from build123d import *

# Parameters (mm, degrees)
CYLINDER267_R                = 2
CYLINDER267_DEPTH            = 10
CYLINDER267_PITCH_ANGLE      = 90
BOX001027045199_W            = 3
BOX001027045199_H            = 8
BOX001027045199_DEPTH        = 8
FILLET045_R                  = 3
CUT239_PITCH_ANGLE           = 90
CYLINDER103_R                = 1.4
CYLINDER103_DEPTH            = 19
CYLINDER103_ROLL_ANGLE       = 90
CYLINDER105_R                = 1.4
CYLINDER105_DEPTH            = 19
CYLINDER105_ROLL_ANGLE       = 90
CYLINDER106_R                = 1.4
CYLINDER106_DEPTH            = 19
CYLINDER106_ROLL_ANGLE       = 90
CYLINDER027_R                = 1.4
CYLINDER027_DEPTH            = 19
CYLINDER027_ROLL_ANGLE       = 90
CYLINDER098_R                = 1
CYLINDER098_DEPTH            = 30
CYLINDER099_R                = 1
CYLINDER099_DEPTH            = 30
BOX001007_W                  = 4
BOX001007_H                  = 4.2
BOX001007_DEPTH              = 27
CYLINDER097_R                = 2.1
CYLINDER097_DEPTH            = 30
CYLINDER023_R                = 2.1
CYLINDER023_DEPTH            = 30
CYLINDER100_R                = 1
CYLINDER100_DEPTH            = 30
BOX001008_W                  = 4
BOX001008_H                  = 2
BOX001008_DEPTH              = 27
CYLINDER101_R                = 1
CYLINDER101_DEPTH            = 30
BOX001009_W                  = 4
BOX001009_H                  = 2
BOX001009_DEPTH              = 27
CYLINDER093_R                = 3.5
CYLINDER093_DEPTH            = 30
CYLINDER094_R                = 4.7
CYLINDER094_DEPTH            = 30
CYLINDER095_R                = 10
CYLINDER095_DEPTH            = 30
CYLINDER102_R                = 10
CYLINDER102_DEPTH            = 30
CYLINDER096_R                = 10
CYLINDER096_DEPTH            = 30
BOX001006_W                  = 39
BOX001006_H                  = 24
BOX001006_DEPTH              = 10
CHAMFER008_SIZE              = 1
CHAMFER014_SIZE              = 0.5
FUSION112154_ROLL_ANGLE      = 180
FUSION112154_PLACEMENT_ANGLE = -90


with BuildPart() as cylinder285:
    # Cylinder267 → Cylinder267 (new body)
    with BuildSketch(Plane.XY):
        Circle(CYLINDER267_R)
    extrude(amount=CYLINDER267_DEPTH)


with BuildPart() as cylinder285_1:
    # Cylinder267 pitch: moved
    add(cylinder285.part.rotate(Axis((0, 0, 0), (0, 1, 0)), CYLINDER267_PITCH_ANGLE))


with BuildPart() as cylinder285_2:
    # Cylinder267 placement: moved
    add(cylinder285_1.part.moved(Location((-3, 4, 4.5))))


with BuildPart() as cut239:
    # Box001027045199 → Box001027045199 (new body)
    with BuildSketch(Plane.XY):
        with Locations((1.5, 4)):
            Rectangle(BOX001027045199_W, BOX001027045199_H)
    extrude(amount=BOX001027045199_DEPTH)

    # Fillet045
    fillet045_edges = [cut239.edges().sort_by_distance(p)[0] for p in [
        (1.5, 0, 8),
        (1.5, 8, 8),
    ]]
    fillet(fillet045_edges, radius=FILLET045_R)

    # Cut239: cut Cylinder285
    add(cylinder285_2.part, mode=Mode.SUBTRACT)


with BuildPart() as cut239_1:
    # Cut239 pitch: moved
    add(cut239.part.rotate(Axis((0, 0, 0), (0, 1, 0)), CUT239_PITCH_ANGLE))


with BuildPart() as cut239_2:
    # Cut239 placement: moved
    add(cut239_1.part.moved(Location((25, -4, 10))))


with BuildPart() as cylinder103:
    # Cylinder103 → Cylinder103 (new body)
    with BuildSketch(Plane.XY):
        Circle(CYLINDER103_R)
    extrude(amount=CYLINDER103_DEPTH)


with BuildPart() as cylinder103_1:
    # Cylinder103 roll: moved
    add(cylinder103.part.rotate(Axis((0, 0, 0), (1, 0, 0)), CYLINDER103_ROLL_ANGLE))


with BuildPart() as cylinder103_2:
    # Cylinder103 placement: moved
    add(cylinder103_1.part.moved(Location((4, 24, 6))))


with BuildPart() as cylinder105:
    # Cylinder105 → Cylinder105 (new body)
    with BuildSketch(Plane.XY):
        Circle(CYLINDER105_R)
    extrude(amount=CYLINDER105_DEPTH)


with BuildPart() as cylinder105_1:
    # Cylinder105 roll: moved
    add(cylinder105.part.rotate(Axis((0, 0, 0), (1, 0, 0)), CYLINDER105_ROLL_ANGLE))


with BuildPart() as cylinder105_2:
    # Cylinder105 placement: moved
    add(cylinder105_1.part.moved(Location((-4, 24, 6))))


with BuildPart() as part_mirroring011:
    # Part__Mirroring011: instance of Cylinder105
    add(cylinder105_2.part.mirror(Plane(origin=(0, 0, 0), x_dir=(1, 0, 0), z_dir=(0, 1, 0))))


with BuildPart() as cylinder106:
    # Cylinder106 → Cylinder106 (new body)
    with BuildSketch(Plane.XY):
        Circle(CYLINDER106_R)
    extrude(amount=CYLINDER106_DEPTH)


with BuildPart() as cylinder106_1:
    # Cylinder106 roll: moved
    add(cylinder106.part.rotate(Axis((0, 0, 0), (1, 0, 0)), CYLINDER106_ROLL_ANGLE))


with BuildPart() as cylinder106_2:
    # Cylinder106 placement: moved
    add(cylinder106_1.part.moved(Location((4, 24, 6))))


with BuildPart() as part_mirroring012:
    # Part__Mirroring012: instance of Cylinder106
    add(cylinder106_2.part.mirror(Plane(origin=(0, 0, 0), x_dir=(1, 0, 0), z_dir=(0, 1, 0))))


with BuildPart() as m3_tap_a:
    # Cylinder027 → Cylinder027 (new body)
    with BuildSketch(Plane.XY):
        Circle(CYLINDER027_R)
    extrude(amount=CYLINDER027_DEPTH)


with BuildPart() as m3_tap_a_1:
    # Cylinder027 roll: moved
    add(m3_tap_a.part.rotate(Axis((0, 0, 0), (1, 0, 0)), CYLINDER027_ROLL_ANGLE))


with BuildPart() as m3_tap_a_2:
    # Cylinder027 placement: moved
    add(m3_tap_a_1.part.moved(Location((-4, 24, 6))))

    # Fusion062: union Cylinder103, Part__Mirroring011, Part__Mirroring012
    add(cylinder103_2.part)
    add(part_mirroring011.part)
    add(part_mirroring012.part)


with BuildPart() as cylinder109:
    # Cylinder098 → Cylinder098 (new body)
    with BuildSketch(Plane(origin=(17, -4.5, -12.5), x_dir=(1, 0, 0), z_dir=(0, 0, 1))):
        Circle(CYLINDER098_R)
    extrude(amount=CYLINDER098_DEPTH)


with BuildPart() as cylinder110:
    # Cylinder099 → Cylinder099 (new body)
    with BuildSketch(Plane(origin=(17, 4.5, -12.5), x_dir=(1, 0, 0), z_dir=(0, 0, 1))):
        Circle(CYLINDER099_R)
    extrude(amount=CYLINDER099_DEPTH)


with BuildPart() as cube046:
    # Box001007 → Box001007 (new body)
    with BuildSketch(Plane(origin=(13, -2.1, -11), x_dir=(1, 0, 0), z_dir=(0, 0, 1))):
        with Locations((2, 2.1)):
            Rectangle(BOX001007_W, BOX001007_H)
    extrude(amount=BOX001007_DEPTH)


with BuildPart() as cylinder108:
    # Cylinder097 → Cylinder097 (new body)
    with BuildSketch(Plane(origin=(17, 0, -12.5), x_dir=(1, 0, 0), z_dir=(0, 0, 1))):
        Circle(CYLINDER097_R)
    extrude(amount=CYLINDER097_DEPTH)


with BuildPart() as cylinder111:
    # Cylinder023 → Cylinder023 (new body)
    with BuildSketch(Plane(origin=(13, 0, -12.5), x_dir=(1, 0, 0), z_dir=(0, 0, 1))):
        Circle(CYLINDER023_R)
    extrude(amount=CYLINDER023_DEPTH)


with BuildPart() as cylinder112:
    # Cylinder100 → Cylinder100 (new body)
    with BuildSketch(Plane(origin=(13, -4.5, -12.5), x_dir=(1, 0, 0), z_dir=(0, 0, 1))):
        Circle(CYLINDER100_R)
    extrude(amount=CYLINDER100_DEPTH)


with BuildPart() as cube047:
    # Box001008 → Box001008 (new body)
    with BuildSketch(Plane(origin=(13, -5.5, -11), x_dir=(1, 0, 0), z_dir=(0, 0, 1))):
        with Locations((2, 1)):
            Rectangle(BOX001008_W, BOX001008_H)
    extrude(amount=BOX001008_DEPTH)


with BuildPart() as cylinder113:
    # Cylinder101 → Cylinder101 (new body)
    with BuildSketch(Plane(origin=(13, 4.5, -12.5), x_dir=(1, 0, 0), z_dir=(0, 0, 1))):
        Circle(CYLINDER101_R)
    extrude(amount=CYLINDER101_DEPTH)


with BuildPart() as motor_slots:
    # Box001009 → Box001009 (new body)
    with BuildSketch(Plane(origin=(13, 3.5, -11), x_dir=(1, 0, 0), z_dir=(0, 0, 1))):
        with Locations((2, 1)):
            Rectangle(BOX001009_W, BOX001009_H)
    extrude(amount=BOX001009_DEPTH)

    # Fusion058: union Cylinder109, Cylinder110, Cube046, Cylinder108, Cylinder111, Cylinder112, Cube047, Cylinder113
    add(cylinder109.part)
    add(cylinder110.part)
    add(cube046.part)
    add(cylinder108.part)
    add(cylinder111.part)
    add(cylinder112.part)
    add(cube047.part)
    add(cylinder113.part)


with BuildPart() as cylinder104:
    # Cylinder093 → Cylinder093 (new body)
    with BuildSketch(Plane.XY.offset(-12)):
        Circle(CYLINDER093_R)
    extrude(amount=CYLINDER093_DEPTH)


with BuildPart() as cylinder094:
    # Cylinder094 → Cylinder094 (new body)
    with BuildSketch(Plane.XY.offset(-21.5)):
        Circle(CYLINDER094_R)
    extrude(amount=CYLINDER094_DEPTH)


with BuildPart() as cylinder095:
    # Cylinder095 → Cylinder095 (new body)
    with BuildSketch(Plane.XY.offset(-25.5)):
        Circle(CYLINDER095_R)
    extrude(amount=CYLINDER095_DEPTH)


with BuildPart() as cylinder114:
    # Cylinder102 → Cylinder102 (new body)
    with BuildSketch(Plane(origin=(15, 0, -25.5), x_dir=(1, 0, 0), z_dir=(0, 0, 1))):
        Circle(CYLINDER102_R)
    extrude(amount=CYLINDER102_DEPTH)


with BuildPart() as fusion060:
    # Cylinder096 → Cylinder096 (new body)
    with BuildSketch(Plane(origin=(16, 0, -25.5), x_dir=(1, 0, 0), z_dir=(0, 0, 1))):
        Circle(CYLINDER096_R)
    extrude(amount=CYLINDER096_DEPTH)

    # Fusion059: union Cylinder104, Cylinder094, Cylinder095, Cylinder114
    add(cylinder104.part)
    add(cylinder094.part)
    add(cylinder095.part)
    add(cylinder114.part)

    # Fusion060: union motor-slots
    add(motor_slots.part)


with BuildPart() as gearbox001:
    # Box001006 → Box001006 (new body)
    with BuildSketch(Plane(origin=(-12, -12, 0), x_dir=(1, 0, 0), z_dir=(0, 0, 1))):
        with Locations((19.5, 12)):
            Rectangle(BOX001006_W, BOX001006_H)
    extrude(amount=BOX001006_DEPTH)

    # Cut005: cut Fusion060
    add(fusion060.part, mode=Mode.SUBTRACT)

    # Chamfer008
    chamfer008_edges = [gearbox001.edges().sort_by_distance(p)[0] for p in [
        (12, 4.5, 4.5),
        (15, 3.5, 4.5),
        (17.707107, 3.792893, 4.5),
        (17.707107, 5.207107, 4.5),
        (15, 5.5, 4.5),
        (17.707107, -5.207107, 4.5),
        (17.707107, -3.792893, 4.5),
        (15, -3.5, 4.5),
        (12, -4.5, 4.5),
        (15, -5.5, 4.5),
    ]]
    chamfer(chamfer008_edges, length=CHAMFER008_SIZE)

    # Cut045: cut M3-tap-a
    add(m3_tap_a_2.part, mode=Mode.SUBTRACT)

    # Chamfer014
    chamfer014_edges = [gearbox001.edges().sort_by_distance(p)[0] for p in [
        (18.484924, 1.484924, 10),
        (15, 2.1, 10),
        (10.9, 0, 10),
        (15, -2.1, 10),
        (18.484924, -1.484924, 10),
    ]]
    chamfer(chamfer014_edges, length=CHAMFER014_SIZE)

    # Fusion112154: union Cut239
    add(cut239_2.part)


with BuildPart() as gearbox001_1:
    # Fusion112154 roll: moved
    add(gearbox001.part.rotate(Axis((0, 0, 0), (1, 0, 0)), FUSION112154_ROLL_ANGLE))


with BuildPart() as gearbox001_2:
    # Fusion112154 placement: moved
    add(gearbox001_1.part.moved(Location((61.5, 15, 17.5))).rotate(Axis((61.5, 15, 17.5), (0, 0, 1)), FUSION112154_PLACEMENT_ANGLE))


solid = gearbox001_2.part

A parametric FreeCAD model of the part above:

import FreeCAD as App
import Part
import Sketcher
Q = App.Units.Quantity


def edges_at(feature, points):
    """Names of the edges that pass closest to the given points."""
    edges = feature.Shape.Edges
    near = lambda p: min(range(len(edges)), key=lambda i: edges[i].distToShape(Part.Vertex(*p))[0])
    return sorted({f"Edge{near(p) + 1}" for p in points})


def add_polygon(sketch, points):
    """Adds a closed chain of lines whose ends are joined by coincident constraints."""
    first, n = sketch.GeometryCount, len(points)
    for a, b in zip(points, points[1:] + points[:1]):
        sketch.addGeometry(Part.LineSegment(App.Vector(*a, 0), App.Vector(*b, 0)), False)
    for i in range(n):
        sketch.addConstraint(Sketcher.Constraint("Coincident", first + i, 2, first + (i + 1) % n, 1))

doc = App.newDocument("Part")
body = doc.addObject("PartDesign::Body", "Body")

sketch1 = body.newObject("Sketcher::SketchObject", "Sketch")
sketch1.AttachmentSupport = (doc.getObject("XY_Plane"), [""])
sketch1.MapMode = "FlatFace"
sketch1.addGeometry(Part.Circle(App.Vector(0, 0, 0), App.Vector(0, 0, 1), 2), False)
sketch1.addConstraint(Sketcher.Constraint("Coincident", 0, 3, -1, 1))
sketch1.addConstraint(Sketcher.Constraint("Diameter", 0, Q("4 mm")))
pad1 = body.newObject("PartDesign::Pad", "Pad")
pad1.Profile = sketch1
pad1.Length = 10
body2 = doc.addObject("PartDesign::Body", "Body001")
doc.recompute()

body.Placement = App.Placement(App.Vector(0, 0, 0), App.Rotation(App.Vector(0, 1, 0), 90))
boolean = body2.newObject("PartDesign::Boolean", "Boolean")
boolean.Type = "Fuse"
boolean.addObjects([body])
body3 = doc.addObject("PartDesign::Body", "Body002")
doc.recompute()

body2.Placement = App.Placement(App.Vector(-3, 4, 4.5), App.Rotation(App.Vector(0, 0, 1), 0))
boolean2 = body3.newObject("PartDesign::Boolean", "Boolean001")
boolean2.Type = "Fuse"
boolean2.addObjects([body2])
body4 = doc.addObject("PartDesign::Body", "Body003")

sketch2 = body4.newObject("Sketcher::SketchObject", "Sketch001")
sketch2.AttachmentSupport = (doc.getObject("XY_Plane003"), [""])
sketch2.MapMode = "FlatFace"
add_polygon(sketch2, [(0, 8), (0, 0), (3, 0), (3, 8)])
sketch2.addConstraint(Sketcher.Constraint("Vertical", 0))
sketch2.addConstraint(Sketcher.Constraint("Horizontal", 1))
sketch2.addConstraint(Sketcher.Constraint("Vertical", 2))
sketch2.addConstraint(Sketcher.Constraint("Horizontal", 3))
sketch2.addConstraint(Sketcher.Constraint("Coincident", 0, 2, -1, 1))
sketch2.addConstraint(Sketcher.Constraint("DistanceX", 1, 1, 1, 2, Q("3 mm")))
sketch2.addConstraint(Sketcher.Constraint("DistanceY", 0, 2, 0, 1, Q("8 mm")))
pad2 = body4.newObject("PartDesign::Pad", "Pad001")
pad2.Profile = sketch2
pad2.Length = 8
doc.recompute()

fillet = body4.newObject("PartDesign::Fillet", "Fillet")
fillet.Base = (pad2, edges_at(pad2, [(1.5, 0, 8), (1.5, 8, 8)]))
fillet.Radius = 3
doc.recompute()

boolean3 = body4.newObject("PartDesign::Boolean", "Boolean002")
boolean3.Type = "Cut"
boolean3.addObjects([body3])
body5 = doc.addObject("PartDesign::Body", "Body004")
doc.recompute()

body4.Placement = App.Placement(App.Vector(0, 0, 0), App.Rotation(App.Vector(0, 1, 0), 90))
boolean4 = body5.newObject("PartDesign::Boolean", "Boolean003")
boolean4.Type = "Fuse"
boolean4.addObjects([body4])
body6 = doc.addObject("PartDesign::Body", "Body005")
doc.recompute()

body5.Placement = App.Placement(App.Vector(25, -4, 10), App.Rotation(App.Vector(0, 0, 1), 0))
boolean5 = body6.newObject("PartDesign::Boolean", "Boolean004")
boolean5.Type = "Fuse"
boolean5.addObjects([body5])
body7 = doc.addObject("PartDesign::Body", "Body006")

sketch3 = body7.newObject("Sketcher::SketchObject", "Sketch002")
sketch3.AttachmentSupport = (doc.getObject("XY_Plane006"), [""])
sketch3.MapMode = "FlatFace"
sketch3.addGeometry(Part.Circle(App.Vector(0, 0, 0), App.Vector(0, 0, 1), 1.4), False)
sketch3.addConstraint(Sketcher.Constraint("Coincident", 0, 3, -1, 1))
sketch3.addConstraint(Sketcher.Constraint("Diameter", 0, Q("2.8 mm")))
pad3 = body7.newObject("PartDesign::Pad", "Pad002")
pad3.Profile = sketch3
pad3.Length = 19
body8 = doc.addObject("PartDesign::Body", "Body007")
doc.recompute()

body7.Placement = App.Placement(App.Vector(0, 0, 0), App.Rotation(App.Vector(1, 0, 0), 90))
boolean6 = body8.newObject("PartDesign::Boolean", "Boolean005")
boolean6.Type = "Fuse"
boolean6.addObjects([body7])
body9 = doc.addObject("PartDesign::Body", "Body008")
doc.recompute()

body8.Placement = App.Placement(App.Vector(4, 24, 6), App.Rotation(App.Vector(0, 0, 1), 0))
boolean7 = body9.newObject("PartDesign::Boolean", "Boolean006")
boolean7.Type = "Fuse"
boolean7.addObjects([body8])
body10 = doc.addObject("PartDesign::Body", "Body009")

sketch4 = body10.newObject("Sketcher::SketchObject", "Sketch003")
sketch4.AttachmentSupport = (doc.getObject("XY_Plane009"), [""])
sketch4.MapMode = "FlatFace"
sketch4.addGeometry(Part.Circle(App.Vector(0, 0, 0), App.Vector(0, 0, 1), 1.4), False)
sketch4.addConstraint(Sketcher.Constraint("Coincident", 0, 3, -1, 1))
sketch4.addConstraint(Sketcher.Constraint("Diameter", 0, Q("2.8 mm")))
pad4 = body10.newObject("PartDesign::Pad", "Pad003")
pad4.Profile = sketch4
pad4.Length = 19
body11 = doc.addObject("PartDesign::Body", "Body010")
doc.recompute()

body10.Placement = App.Placement(App.Vector(0, 0, 0), App.Rotation(App.Vector(1, 0, 0), 90))
boolean8 = body11.newObject("PartDesign::Boolean", "Boolean007")
boolean8.Type = "Fuse"
boolean8.addObjects([body10])
body12 = doc.addObject("PartDesign::Body", "Body011")
doc.recompute()

body11.Placement = App.Placement(App.Vector(-4, 24, 6), App.Rotation(App.Vector(0, 0, 1), 0))
boolean9 = body12.newObject("PartDesign::Boolean", "Boolean008")
boolean9.Type = "Fuse"
boolean9.addObjects([body11])
body13 = doc.addObject("PartDesign::Body", "Body012")
doc.recompute()

mirroring = doc.addObject("Part::Mirroring", "Mirroring")
mirroring.Source = body12
mirroring.Base = App.Vector(0, 0, 0)
mirroring.Normal = App.Vector(0, 1, 0)
body13.BaseFeature = mirroring
doc.recompute()
body14 = doc.addObject("PartDesign::Body", "Body013")

sketch5 = body14.newObject("Sketcher::SketchObject", "Sketch004")
sketch5.AttachmentSupport = (doc.getObject("XY_Plane013"), [""])
sketch5.MapMode = "FlatFace"
sketch5.addGeometry(Part.Circle(App.Vector(0, 0, 0), App.Vector(0, 0, 1), 1.4), False)
sketch5.addConstraint(Sketcher.Constraint("Coincident", 0, 3, -1, 1))
sketch5.addConstraint(Sketcher.Constraint("Diameter", 0, Q("2.8 mm")))
pad5 = body14.newObject("PartDesign::Pad", "Pad004")
pad5.Profile = sketch5
pad5.Length = 19
body15 = doc.addObject("PartDesign::Body", "Body014")
doc.recompute()

body14.Placement = App.Placement(App.Vector(0, 0, 0), App.Rotation(App.Vector(1, 0, 0), 90))
boolean10 = body15.newObject("PartDesign::Boolean", "Boolean009")
boolean10.Type = "Fuse"
boolean10.addObjects([body14])
body16 = doc.addObject("PartDesign::Body", "Body015")
doc.recompute()

body15.Placement = App.Placement(App.Vector(4, 24, 6), App.Rotation(App.Vector(0, 0, 1), 0))
boolean11 = body16.newObject("PartDesign::Boolean", "Boolean010")
boolean11.Type = "Fuse"
boolean11.addObjects([body15])
body17 = doc.addObject("PartDesign::Body", "Body016")
doc.recompute()

mirroring2 = doc.addObject("Part::Mirroring", "Mirroring001")
mirroring2.Source = body16
mirroring2.Base = App.Vector(0, 0, 0)
mirroring2.Normal = App.Vector(0, 1, 0)
body17.BaseFeature = mirroring2
doc.recompute()
body18 = doc.addObject("PartDesign::Body", "Body017")

sketch6 = body18.newObject("Sketcher::SketchObject", "Sketch005")
sketch6.AttachmentSupport = (doc.getObject("XY_Plane017"), [""])
sketch6.MapMode = "FlatFace"
sketch6.addGeometry(Part.Circle(App.Vector(0, 0, 0), App.Vector(0, 0, 1), 1.4), False)
sketch6.addConstraint(Sketcher.Constraint("Coincident", 0, 3, -1, 1))
sketch6.addConstraint(Sketcher.Constraint("Diameter", 0, Q("2.8 mm")))
pad6 = body18.newObject("PartDesign::Pad", "Pad005")
pad6.Profile = sketch6
pad6.Length = 19
body19 = doc.addObject("PartDesign::Body", "Body018")
doc.recompute()

body18.Placement = App.Placement(App.Vector(0, 0, 0), App.Rotation(App.Vector(1, 0, 0), 90))
boolean12 = body19.newObject("PartDesign::Boolean", "Boolean011")
boolean12.Type = "Fuse"
boolean12.addObjects([body18])
body20 = doc.addObject("PartDesign::Body", "Body019")
body20.AllowCompound = True
doc.recompute()

body19.Placement = App.Placement(App.Vector(-4, 24, 6), App.Rotation(App.Vector(0, 0, 1), 0))
boolean13 = body20.newObject("PartDesign::Boolean", "Boolean012")
boolean13.Type = "Fuse"
boolean13.addObjects([body19])
doc.recompute()

boolean14 = body20.newObject("PartDesign::Boolean", "Boolean013")
boolean14.Type = "Fuse"
boolean14.addObjects([body9])
doc.recompute()

boolean15 = body20.newObject("PartDesign::Boolean", "Boolean014")
boolean15.Type = "Fuse"
boolean15.addObjects([body13])
doc.recompute()

boolean16 = body20.newObject("PartDesign::Boolean", "Boolean015")
boolean16.Type = "Fuse"
boolean16.addObjects([body17])
body21 = doc.addObject("PartDesign::Body", "Body020")

sketch7 = body21.newObject("Sketcher::SketchObject", "Sketch006")
sketch7.AttachmentSupport = (doc.getObject("XY_Plane020"), [""])
sketch7.MapMode = "FlatFace"
sketch7.AttachmentOffset = App.Placement(App.Vector(0, 0, -12.5), App.Rotation())
sketch7.addGeometry(Part.Circle(App.Vector(17, -4.5, 0), App.Vector(0, 0, 1), 1), False)
sketch7.addConstraint(Sketcher.Constraint("Diameter", 0, Q("2 mm")))
sketch7.addConstraint(Sketcher.Constraint("DistanceX", -1, 1, 0, 3, Q("17 mm")))
sketch7.addConstraint(Sketcher.Constraint("DistanceY", 0, 3, -1, 1, Q("4.5 mm")))
pad7 = body21.newObject("PartDesign::Pad", "Pad006")
pad7.Profile = sketch7
pad7.Length = 30
body22 = doc.addObject("PartDesign::Body", "Body021")

sketch8 = body22.newObject("Sketcher::SketchObject", "Sketch007")
sketch8.AttachmentSupport = (doc.getObject("XY_Plane021"), [""])
sketch8.MapMode = "FlatFace"
sketch8.AttachmentOffset = App.Placement(App.Vector(0, 0, -12.5), App.Rotation())
sketch8.addGeometry(Part.Circle(App.Vector(17, 4.5, 0), App.Vector(0, 0, 1), 1), False)
sketch8.addConstraint(Sketcher.Constraint("Diameter", 0, Q("2 mm")))
sketch8.addConstraint(Sketcher.Constraint("DistanceX", -1, 1, 0, 3, Q("17 mm")))
sketch8.addConstraint(Sketcher.Constraint("DistanceY", -1, 1, 0, 3, Q("4.5 mm")))
pad8 = body22.newObject("PartDesign::Pad", "Pad007")
pad8.Profile = sketch8
pad8.Length = 30
body23 = doc.addObject("PartDesign::Body", "Body022")

sketch9 = body23.newObject("Sketcher::SketchObject", "Sketch008")
sketch9.AttachmentSupport = (doc.getObject("XY_Plane022"), [""])
sketch9.MapMode = "FlatFace"
sketch9.AttachmentOffset = App.Placement(App.Vector(0, 0, -11), App.Rotation())
add_polygon(sketch9, [(13, 2.1), (13, -2.1), (17, -2.1), (17, 2.1)])
sketch9.addConstraint(Sketcher.Constraint("Vertical", 0))
sketch9.addConstraint(Sketcher.Constraint("Horizontal", 1))
sketch9.addConstraint(Sketcher.Constraint("Vertical", 2))
sketch9.addConstraint(Sketcher.Constraint("Horizontal", 3))
sketch9.addConstraint(Sketcher.Constraint("DistanceX", 1, 1, 1, 2, Q("4 mm")))
sketch9.addConstraint(Sketcher.Constraint("DistanceY", 0, 2, 0, 1, Q("4.2 mm")))
sketch9.addConstraint(Sketcher.Constraint("DistanceX", -1, 1, 0, 2, Q("13 mm")))
sketch9.addConstraint(Sketcher.Constraint("DistanceY", 0, 2, -1, 1, Q("2.1 mm")))
pad9 = body23.newObject("PartDesign::Pad", "Pad008")
pad9.Profile = sketch9
pad9.Length = 27
body24 = doc.addObject("PartDesign::Body", "Body023")

sketch10 = body24.newObject("Sketcher::SketchObject", "Sketch009")
sketch10.AttachmentSupport = (doc.getObject("XY_Plane023"), [""])
sketch10.MapMode = "FlatFace"
sketch10.AttachmentOffset = App.Placement(App.Vector(0, 0, -12.5), App.Rotation())
sketch10.addGeometry(Part.Circle(App.Vector(17, 0, 0), App.Vector(0, 0, 1), 2.1), False)
sketch10.addConstraint(Sketcher.Constraint("PointOnObject", 0, 3, -1))
sketch10.addConstraint(Sketcher.Constraint("Diameter", 0, Q("4.2 mm")))
sketch10.addConstraint(Sketcher.Constraint("DistanceX", -1, 1, 0, 3, Q("17 mm")))
pad10 = body24.newObject("PartDesign::Pad", "Pad009")
pad10.Profile = sketch10
pad10.Length = 30
body25 = doc.addObject("PartDesign::Body", "Body024")

sketch11 = body25.newObject("Sketcher::SketchObject", "Sketch010")
sketch11.AttachmentSupport = (doc.getObject("XY_Plane024"), [""])
sketch11.MapMode = "FlatFace"
sketch11.AttachmentOffset = App.Placement(App.Vector(0, 0, -12.5), App.Rotation())
sketch11.addGeometry(Part.Circle(App.Vector(13, 0, 0), App.Vector(0, 0, 1), 2.1), False)
sketch11.addConstraint(Sketcher.Constraint("PointOnObject", 0, 3, -1))
sketch11.addConstraint(Sketcher.Constraint("Diameter", 0, Q("4.2 mm")))
sketch11.addConstraint(Sketcher.Constraint("DistanceX", -1, 1, 0, 3, Q("13 mm")))
pad11 = body25.newObject("PartDesign::Pad", "Pad010")
pad11.Profile = sketch11
pad11.Length = 30
body26 = doc.addObject("PartDesign::Body", "Body025")

sketch12 = body26.newObject("Sketcher::SketchObject", "Sketch011")
sketch12.AttachmentSupport = (doc.getObject("XY_Plane025"), [""])
sketch12.MapMode = "FlatFace"
sketch12.AttachmentOffset = App.Placement(App.Vector(0, 0, -12.5), App.Rotation())
sketch12.addGeometry(Part.Circle(App.Vector(13, -4.5, 0), App.Vector(0, 0, 1), 1), False)
sketch12.addConstraint(Sketcher.Constraint("Diameter", 0, Q("2 mm")))
sketch12.addConstraint(Sketcher.Constraint("DistanceX", -1, 1, 0, 3, Q("13 mm")))
sketch12.addConstraint(Sketcher.Constraint("DistanceY", 0, 3, -1, 1, Q("4.5 mm")))
pad12 = body26.newObject("PartDesign::Pad", "Pad011")
pad12.Profile = sketch12
pad12.Length = 30
body27 = doc.addObject("PartDesign::Body", "Body026")

sketch13 = body27.newObject("Sketcher::SketchObject", "Sketch012")
sketch13.AttachmentSupport = (doc.getObject("XY_Plane026"), [""])
sketch13.MapMode = "FlatFace"
sketch13.AttachmentOffset = App.Placement(App.Vector(0, 0, -11), App.Rotation())
add_polygon(sketch13, [(13, -3.5), (13, -5.5), (17, -5.5), (17, -3.5)])
sketch13.addConstraint(Sketcher.Constraint("Vertical", 0))
sketch13.addConstraint(Sketcher.Constraint("Horizontal", 1))
sketch13.addConstraint(Sketcher.Constraint("Vertical", 2))
sketch13.addConstraint(Sketcher.Constraint("Horizontal", 3))
sketch13.addConstraint(Sketcher.Constraint("DistanceX", 1, 1, 1, 2, Q("4 mm")))
sketch13.addConstraint(Sketcher.Constraint("DistanceY", 0, 2, 0, 1, Q("2 mm")))
sketch13.addConstraint(Sketcher.Constraint("DistanceX", -1, 1, 0, 2, Q("13 mm")))
sketch13.addConstraint(Sketcher.Constraint("DistanceY", 0, 2, -1, 1, Q("5.5 mm")))
pad13 = body27.newObject("PartDesign::Pad", "Pad012")
pad13.Profile = sketch13
pad13.Length = 27
body28 = doc.addObject("PartDesign::Body", "Body027")

sketch14 = body28.newObject("Sketcher::SketchObject", "Sketch013")
sketch14.AttachmentSupport = (doc.getObject("XY_Plane027"), [""])
sketch14.MapMode = "FlatFace"
sketch14.AttachmentOffset = App.Placement(App.Vector(0, 0, -12.5), App.Rotation())
sketch14.addGeometry(Part.Circle(App.Vector(13, 4.5, 0), App.Vector(0, 0, 1), 1), False)
sketch14.addConstraint(Sketcher.Constraint("Diameter", 0, Q("2 mm")))
sketch14.addConstraint(Sketcher.Constraint("DistanceX", -1, 1, 0, 3, Q("13 mm")))
sketch14.addConstraint(Sketcher.Constraint("DistanceY", -1, 1, 0, 3, Q("4.5 mm")))
pad14 = body28.newObject("PartDesign::Pad", "Pad013")
pad14.Profile = sketch14
pad14.Length = 30
body29 = doc.addObject("PartDesign::Body", "Body028")
body29.AllowCompound = True

sketch15 = body29.newObject("Sketcher::SketchObject", "Sketch014")
sketch15.AttachmentSupport = (doc.getObject("XY_Plane028"), [""])
sketch15.MapMode = "FlatFace"
sketch15.AttachmentOffset = App.Placement(App.Vector(0, 0, -11), App.Rotation())
add_polygon(sketch15, [(13, 5.5), (13, 3.5), (17, 3.5), (17, 5.5)])
sketch15.addConstraint(Sketcher.Constraint("Vertical", 0))
sketch15.addConstraint(Sketcher.Constraint("Horizontal", 1))
sketch15.addConstraint(Sketcher.Constraint("Vertical", 2))
sketch15.addConstraint(Sketcher.Constraint("Horizontal", 3))
sketch15.addConstraint(Sketcher.Constraint("DistanceX", 1, 1, 1, 2, Q("4 mm")))
sketch15.addConstraint(Sketcher.Constraint("DistanceY", 0, 2, 0, 1, Q("2 mm")))
sketch15.addConstraint(Sketcher.Constraint("DistanceX", -1, 1, 0, 2, Q("13 mm")))
sketch15.addConstraint(Sketcher.Constraint("DistanceY", -1, 1, 0, 2, Q("3.5 mm")))
pad15 = body29.newObject("PartDesign::Pad", "Pad014")
pad15.Profile = sketch15
pad15.Length = 27
doc.recompute()

boolean17 = body29.newObject("PartDesign::Boolean", "Boolean016")
boolean17.Type = "Fuse"
boolean17.addObjects([body21])
doc.recompute()

boolean18 = body29.newObject("PartDesign::Boolean", "Boolean017")
boolean18.Type = "Fuse"
boolean18.addObjects([body22])
doc.recompute()

boolean19 = body29.newObject("PartDesign::Boolean", "Boolean018")
boolean19.Type = "Fuse"
boolean19.addObjects([body23])
doc.recompute()

boolean20 = body29.newObject("PartDesign::Boolean", "Boolean019")
boolean20.Type = "Fuse"
boolean20.addObjects([body24])
doc.recompute()

boolean21 = body29.newObject("PartDesign::Boolean", "Boolean020")
boolean21.Type = "Fuse"
boolean21.addObjects([body25])
doc.recompute()

boolean22 = body29.newObject("PartDesign::Boolean", "Boolean021")
boolean22.Type = "Fuse"
boolean22.addObjects([body26])
doc.recompute()

boolean23 = body29.newObject("PartDesign::Boolean", "Boolean022")
boolean23.Type = "Fuse"
boolean23.addObjects([body27])
doc.recompute()

boolean24 = body29.newObject("PartDesign::Boolean", "Boolean023")
boolean24.Type = "Fuse"
boolean24.addObjects([body28])
body30 = doc.addObject("PartDesign::Body", "Body029")

sketch16 = body30.newObject("Sketcher::SketchObject", "Sketch015")
sketch16.AttachmentSupport = (doc.getObject("XY_Plane029"), [""])
sketch16.MapMode = "FlatFace"
sketch16.AttachmentOffset = App.Placement(App.Vector(0, 0, -12), App.Rotation())
sketch16.addGeometry(Part.Circle(App.Vector(0, 0, 0), App.Vector(0, 0, 1), 3.5), False)
sketch16.addConstraint(Sketcher.Constraint("Coincident", 0, 3, -1, 1))
sketch16.addConstraint(Sketcher.Constraint("Diameter", 0, Q("7 mm")))
pad16 = body30.newObject("PartDesign::Pad", "Pad015")
pad16.Profile = sketch16
pad16.Length = 30
body31 = doc.addObject("PartDesign::Body", "Body030")

sketch17 = body31.newObject("Sketcher::SketchObject", "Sketch016")
sketch17.AttachmentSupport = (doc.getObject("XY_Plane030"), [""])
sketch17.MapMode = "FlatFace"
sketch17.AttachmentOffset = App.Placement(App.Vector(0, 0, -21.5), App.Rotation())
sketch17.addGeometry(Part.Circle(App.Vector(0, 0, 0), App.Vector(0, 0, 1), 4.7), False)
sketch17.addConstraint(Sketcher.Constraint("Coincident", 0, 3, -1, 1))
sketch17.addConstraint(Sketcher.Constraint("Diameter", 0, Q("9.4 mm")))
pad17 = body31.newObject("PartDesign::Pad", "Pad016")
pad17.Profile = sketch17
pad17.Length = 30
body32 = doc.addObject("PartDesign::Body", "Body031")

sketch18 = body32.newObject("Sketcher::SketchObject", "Sketch017")
sketch18.AttachmentSupport = (doc.getObject("XY_Plane031"), [""])
sketch18.MapMode = "FlatFace"
sketch18.AttachmentOffset = App.Placement(App.Vector(0, 0, -25.5), App.Rotation())
sketch18.addGeometry(Part.Circle(App.Vector(0, 0, 0), App.Vector(0, 0, 1), 10), False)
sketch18.addConstraint(Sketcher.Constraint("Coincident", 0, 3, -1, 1))
sketch18.addConstraint(Sketcher.Constraint("Diameter", 0, Q("20 mm")))
pad18 = body32.newObject("PartDesign::Pad", "Pad017")
pad18.Profile = sketch18
pad18.Length = 30
body33 = doc.addObject("PartDesign::Body", "Body032")

sketch19 = body33.newObject("Sketcher::SketchObject", "Sketch018")
sketch19.AttachmentSupport = (doc.getObject("XY_Plane032"), [""])
sketch19.MapMode = "FlatFace"
sketch19.AttachmentOffset = App.Placement(App.Vector(0, 0, -25.5), App.Rotation())
sketch19.addGeometry(Part.Circle(App.Vector(15, 0, 0), App.Vector(0, 0, 1), 10), False)
sketch19.addConstraint(Sketcher.Constraint("PointOnObject", 0, 3, -1))
sketch19.addConstraint(Sketcher.Constraint("Diameter", 0, Q("20 mm")))
sketch19.addConstraint(Sketcher.Constraint("DistanceX", -1, 1, 0, 3, Q("15 mm")))
pad19 = body33.newObject("PartDesign::Pad", "Pad018")
pad19.Profile = sketch19
pad19.Length = 30
body34 = doc.addObject("PartDesign::Body", "Body033")
body34.AllowCompound = True

sketch20 = body34.newObject("Sketcher::SketchObject", "Sketch019")
sketch20.AttachmentSupport = (doc.getObject("XY_Plane033"), [""])
sketch20.MapMode = "FlatFace"
sketch20.AttachmentOffset = App.Placement(App.Vector(0, 0, -25.5), App.Rotation())
sketch20.addGeometry(Part.Circle(App.Vector(16, 0, 0), App.Vector(0, 0, 1), 10), False)
sketch20.addConstraint(Sketcher.Constraint("PointOnObject", 0, 3, -1))
sketch20.addConstraint(Sketcher.Constraint("Diameter", 0, Q("20 mm")))
sketch20.addConstraint(Sketcher.Constraint("DistanceX", -1, 1, 0, 3, Q("16 mm")))
pad20 = body34.newObject("PartDesign::Pad", "Pad019")
pad20.Profile = sketch20
pad20.Length = 30
doc.recompute()

boolean25 = body34.newObject("PartDesign::Boolean", "Boolean024")
boolean25.Type = "Fuse"
boolean25.addObjects([body30])
doc.recompute()

boolean26 = body34.newObject("PartDesign::Boolean", "Boolean025")
boolean26.Type = "Fuse"
boolean26.addObjects([body31])
doc.recompute()

boolean27 = body34.newObject("PartDesign::Boolean", "Boolean026")
boolean27.Type = "Fuse"
boolean27.addObjects([body32])
doc.recompute()

boolean28 = body34.newObject("PartDesign::Boolean", "Boolean027")
boolean28.Type = "Fuse"
boolean28.addObjects([body33])
doc.recompute()

boolean29 = body34.newObject("PartDesign::Boolean", "Boolean028")
boolean29.Type = "Fuse"
boolean29.addObjects([body29])
body35 = doc.addObject("PartDesign::Body", "Body034")

sketch21 = body35.newObject("Sketcher::SketchObject", "Sketch020")
sketch21.AttachmentSupport = (doc.getObject("XY_Plane034"), [""])
sketch21.MapMode = "FlatFace"
add_polygon(sketch21, [(-12, 12), (-12, -12), (27, -12), (27, 12)])
sketch21.addConstraint(Sketcher.Constraint("Vertical", 0))
sketch21.addConstraint(Sketcher.Constraint("Horizontal", 1))
sketch21.addConstraint(Sketcher.Constraint("Vertical", 2))
sketch21.addConstraint(Sketcher.Constraint("Horizontal", 3))
sketch21.addConstraint(Sketcher.Constraint("DistanceX", 1, 1, 1, 2, Q("39 mm")))
sketch21.addConstraint(Sketcher.Constraint("DistanceY", 0, 2, 0, 1, Q("24 mm")))
sketch21.addConstraint(Sketcher.Constraint("DistanceX", 0, 2, -1, 1, Q("12 mm")))
sketch21.addConstraint(Sketcher.Constraint("DistanceY", 0, 2, -1, 1, Q("12 mm")))
pad21 = body35.newObject("PartDesign::Pad", "Pad020")
pad21.Profile = sketch21
pad21.Length = 10
doc.recompute()

boolean30 = body35.newObject("PartDesign::Boolean", "Boolean029")
boolean30.Type = "Cut"
boolean30.addObjects([body34])
doc.recompute()

chamfer = body35.newObject("PartDesign::Chamfer", "Chamfer")
chamfer.Base = (boolean30, edges_at(boolean30, [
    (12, 4.5, 4.5),
    (15, 3.5, 4.5),
    (18, 4.5, 4.5),
    (18, 4.5, 4.5),
    (15, 5.5, 4.5),
    (18, -4.5, 4.5),
    (18, -4.5, 4.5),
    (15, -3.5, 4.5),
    (12, -4.5, 4.5),
    (15, -5.5, 4.5),
]))
chamfer.Size = 1
doc.recompute()

boolean31 = body35.newObject("PartDesign::Boolean", "Boolean030")
boolean31.Type = "Cut"
boolean31.addObjects([body20])
doc.recompute()

chamfer2 = body35.newObject("PartDesign::Chamfer", "Chamfer001")
chamfer2.Base = (boolean31, edges_at(boolean31, [
    (19.1, 0, 10),
    (15, 2.1, 10),
    (10.9, 0, 10),
    (15, -2.1, 10),
    (19.1, 0, 10),
]))
chamfer2.Size = 0.5
doc.recompute()

boolean32 = body35.newObject("PartDesign::Boolean", "Boolean031")
boolean32.Type = "Fuse"
boolean32.addObjects([body6])
body36 = doc.addObject("PartDesign::Body", "Body035")
doc.recompute()

body35.Placement = App.Placement(App.Vector(0, 0, 0), App.Rotation(App.Vector(1, 0, 0), 180))
boolean33 = body36.newObject("PartDesign::Boolean", "Boolean032")
boolean33.Type = "Fuse"
boolean33.addObjects([body35])
body37 = doc.addObject("PartDesign::Body", "Body036")
doc.recompute()

body36.Placement = App.Placement(App.Vector(61.5, 15, 17.5), App.Rotation(App.Vector(0, 0, 1), 270))
boolean34 = body37.newObject("PartDesign::Boolean", "Boolean033")
boolean34.Type = "Fuse"
boolean34.addObjects([body36])
mirroring.Visibility = False
mirroring2.Visibility = False

doc.recompute()
